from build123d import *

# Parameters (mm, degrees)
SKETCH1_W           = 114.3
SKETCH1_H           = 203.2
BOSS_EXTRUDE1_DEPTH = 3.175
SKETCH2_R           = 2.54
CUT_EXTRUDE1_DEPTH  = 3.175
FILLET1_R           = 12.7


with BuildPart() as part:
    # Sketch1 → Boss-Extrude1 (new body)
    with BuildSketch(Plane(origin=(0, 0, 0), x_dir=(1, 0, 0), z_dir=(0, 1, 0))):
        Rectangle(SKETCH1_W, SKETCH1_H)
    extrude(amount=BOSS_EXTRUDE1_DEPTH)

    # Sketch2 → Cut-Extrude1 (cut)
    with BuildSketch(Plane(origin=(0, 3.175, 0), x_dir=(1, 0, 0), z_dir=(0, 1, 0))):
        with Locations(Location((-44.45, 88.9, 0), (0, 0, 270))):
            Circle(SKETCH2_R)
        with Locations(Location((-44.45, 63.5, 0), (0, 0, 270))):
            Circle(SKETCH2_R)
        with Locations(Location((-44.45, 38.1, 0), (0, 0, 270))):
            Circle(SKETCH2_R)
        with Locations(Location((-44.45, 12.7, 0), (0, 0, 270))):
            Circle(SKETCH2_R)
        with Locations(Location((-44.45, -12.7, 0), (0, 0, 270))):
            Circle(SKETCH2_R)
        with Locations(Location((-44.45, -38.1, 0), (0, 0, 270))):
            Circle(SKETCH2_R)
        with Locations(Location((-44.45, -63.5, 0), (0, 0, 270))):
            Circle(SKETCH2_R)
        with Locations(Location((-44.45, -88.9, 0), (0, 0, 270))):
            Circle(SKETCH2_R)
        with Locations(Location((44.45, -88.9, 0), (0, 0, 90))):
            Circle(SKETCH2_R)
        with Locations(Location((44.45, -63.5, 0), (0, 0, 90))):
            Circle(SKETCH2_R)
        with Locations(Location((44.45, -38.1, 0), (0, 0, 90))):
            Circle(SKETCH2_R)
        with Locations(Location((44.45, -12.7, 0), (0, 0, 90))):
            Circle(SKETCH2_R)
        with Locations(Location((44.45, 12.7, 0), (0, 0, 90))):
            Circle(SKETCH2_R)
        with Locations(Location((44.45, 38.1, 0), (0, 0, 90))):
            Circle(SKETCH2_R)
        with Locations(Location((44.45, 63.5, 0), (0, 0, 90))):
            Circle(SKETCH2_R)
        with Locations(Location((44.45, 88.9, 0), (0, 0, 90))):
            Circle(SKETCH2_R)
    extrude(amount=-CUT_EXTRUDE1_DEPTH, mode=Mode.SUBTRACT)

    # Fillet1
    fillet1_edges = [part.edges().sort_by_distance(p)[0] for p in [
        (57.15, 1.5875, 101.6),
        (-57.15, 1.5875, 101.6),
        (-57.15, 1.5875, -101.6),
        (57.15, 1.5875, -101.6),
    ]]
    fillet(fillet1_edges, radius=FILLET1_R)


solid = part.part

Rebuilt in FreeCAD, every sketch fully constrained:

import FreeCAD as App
import Part
import Sketcher
from FreeCAD import Vector
Q = App.Units.Quantity


def edges_at(feature, points):
    """Names of the edges that pass closest to the given points."""
    edges = feature.Shape.Edges
    near = lambda p: min(range(len(edges)), key=lambda i: edges[i].distToShape(Part.Vertex(*p))[0])
    return sorted({f"Edge{near(p) + 1}" for p in points})


def add_polygon(sketch, points):
    """Adds a closed chain of lines whose ends are joined by coincident constraints."""
    first, n = sketch.GeometryCount, len(points)
    for a, b in zip(points, points[1:] + points[:1]):
        sketch.addGeometry(Part.LineSegment(App.Vector(*a, 0), App.Vector(*b, 0)), False)
    for i in range(n):
        sketch.addConstraint(Sketcher.Constraint("Coincident", first + i, 2, first + (i + 1) % n, 1))

doc = App.newDocument("Part")
params = doc.addObject("Spreadsheet::Sheet", "Params")
for row, (alias, value) in enumerate([
    ("sketch1_height", "8 in"),
    ("sketch1_width", "4.5 in"),
    ("pad1_length", "0.125 in"),
    ("sketch2_diameter", "0.2 in"),
    ("pocket1_length", "0.125 in"),
    ("fillet_radius", "0.5 in"),
], start=1):
    params.set(f"A{row}", alias)
    params.set(f"B{row}", "=" + value)
    params.setAlias(f"B{row}", alias)

body = doc.addObject("PartDesign::Body", "Body")

sketch1 = body.newObject("Sketcher::SketchObject", "Sketch")
sketch1.AttachmentSupport = (doc.getObject("XZ_Plane"), [""])
sketch1.MapMode = "FlatFace"
add_polygon(sketch1, [(-57, -102), (-57, 102), (57, 102), (57, -102)])
sketch1.addConstraint([
    Sketcher.Constraint("Vertical", 0),
    Sketcher.Constraint("Horizontal", 1),
    Sketcher.Constraint("Vertical", 2),
    Sketcher.Constraint("Horizontal", 3),
    Sketcher.Constraint("Symmetric", 0, 2, 2, 2, -1, 1),
    Sketcher.Constraint("DistanceY", 0, 1, 0, 2, Q("8 in")),
    Sketcher.Constraint("DistanceX", 1, 1, 1, 2, Q("4.5 in")),
])
sketch1.setExpression("Constraints[9]", "Params.sketch1_height")
sketch1.setExpression("Constraints[10]", "Params.sketch1_width")
pad1 = body.newObject("PartDesign::Pad", "Pad")
pad1.Profile = sketch1
pad1.setExpression("Length", "Params.pad1_length")
pad1.Reversed = True

sketch2 = body.newObject("Sketcher::SketchObject", "Sketch001")
sketch2.AttachmentSupport = (doc.getObject("XZ_Plane"), [""])
sketch2.MapMode = "FlatFace"
sketch2.AttachmentOffset = App.Placement(Vector(0, 0, -0.125 * 25.4), App.Rotation())
sketch2.addGeometry([
    Part.Circle(Vector(-44.5, -88.9, 0), Vector(0, 0, 1), 2.5),
    Part.Circle(Vector(-44.5, -63.5, 0), Vector(0, 0, 1), 2.5),
    Part.Circle(Vector(-44.5, -38.1, 0), Vector(0, 0, 1), 2.5),
    Part.Circle(Vector(-44.5, -12.7, 0), Vector(0, 0, 1), 2.5),
    Part.Circle(Vector(-44.5, 12.7, 0), Vector(0, 0, 1), 2.5),
    Part.Circle(Vector(-44.5, 38.1, 0), Vector(0, 0, 1), 2.5),
    Part.Circle(Vector(-44.5, 63.5, 0), Vector(0, 0, 1), 2.5),
    Part.Circle(Vector(-44.5, 88.9, 0), Vector(0, 0, 1), 2.5),
    Part.Circle(Vector(44.5, 88.9, 0), Vector(0, 0, 1), 2.5),
    Part.Circle(Vector(44.5, 63.5, 0), Vector(0, 0, 1), 2.5),
    Part.Circle(Vector(44.5, 38.1, 0), Vector(0, 0, 1), 2.5),
    Part.Circle(Vector(44.5, 12.7, 0), Vector(0, 0, 1), 2.5),
    Part.Circle(Vector(44.5, -12.7, 0), Vector(0, 0, 1), 2.5),
    Part.Circle(Vector(44.5, -38.1, 0), Vector(0, 0, 1), 2.5),
    Part.Circle(Vector(44.5, -63.5, 0), Vector(0, 0, 1), 2.5),
    Part.Circle(Vector(44.5, -88.9, 0), Vector(0, 0, 1), 2.5),
], False)
sketch2.addConstraint([
    Sketcher.Constraint("Equal", 0, 1),
    Sketcher.Constraint("Equal", 1, 2),
    Sketcher.Constraint("Equal", 2, 3),
    Sketcher.Constraint("Equal", 3, 4),
    Sketcher.Constraint("Equal", 4, 5),
    Sketcher.Constraint("Equal", 5, 6),
    Sketcher.Constraint("Equal", 6, 7),
    Sketcher.Constraint("Equal", 7, 8),
    Sketcher.Constraint("Equal", 8, 9),
    Sketcher.Constraint("Equal", 9, 10),
    Sketcher.Constraint("Equal", 10, 11),
    Sketcher.Constraint("Equal", 11, 12),
    Sketcher.Constraint("Equal", 12, 13),
    Sketcher.Constraint("Equal", 13, 14),
    Sketcher.Constraint("Equal", 14, 15),
    Sketcher.Constraint("Symmetric", 0, 3, 8, 3, -1, 1),
    Sketcher.Constraint("Symmetric", 1, 3, 9, 3, -1, 1),
    Sketcher.Constraint("Symmetric", 2, 3, 10, 3, -1, 1),
    Sketcher.Constraint("Symmetric", 3, 3, 11, 3, -1, 1),
    Sketcher.Constraint("Symmetric", 4, 3, 12, 3, -1, 1),
    Sketcher.Constraint("Symmetric", 5, 3, 13, 3, -1, 1),
    Sketcher.Constraint("Symmetric", 6, 3, 14, 3, -1, 1),
    Sketcher.Constraint("Symmetric", 7, 3, 15, 3, -1, 1),
    Sketcher.Constraint("Symmetric", 7, 3, 8, 3, -2),
    Sketcher.Constraint("Symmetric", 6, 3, 9, 3, -2),
    Sketcher.Constraint("Symmetric", 5, 3, 10, 3, -2),
    Sketcher.Constraint("Symmetric", 4, 3, 11, 3, -2),
    Sketcher.Constraint("Vertical", 0, 3, 1, 3),
    Sketcher.Constraint("Vertical", 1, 3, 2, 3),
    Sketcher.Constraint("Vertical", 2, 3, 3, 3),
    Sketcher.Constraint("Diameter", 0, Q("0.2 in")),
    Sketcher.Constraint("DistanceY", 0, 3, 1, 3, Q("1 in")),
    Sketcher.Constraint("DistanceY", 1, 3, 2, 3, Q("1 in")),
    Sketcher.Constraint("DistanceY", 2, 3, 3, 3, Q("1 in")),
    Sketcher.Constraint("DistanceY", 3, 3, 4, 3, Q("1 in")),
    Sketcher.Constraint("DistanceX", 7, 3, 8, 3, Q("3.5 in")),
])
sketch2.setExpression("Constraints[30]", "Params.sketch2_diameter")
pocket1 = body.newObject("PartDesign::Pocket", "Pocket")
pocket1.Profile = sketch2
pocket1.setExpression("Length", "Params.pocket1_length")
pocket1.Reversed = True
doc.recompute()

fillet = body.newObject("PartDesign::Fillet", "Fillet")
fillet.Base = (pocket1, edges_at(pocket1, [
    (57.15, 1.587, 101.6),
    (-57.15, 1.587, 101.6),
    (-57.15, 1.587, -101.6),
    (57.15, 1.587, -101.6),
]))
fillet.setExpression("Radius", "Params.fillet_radius")

doc.recompute()
